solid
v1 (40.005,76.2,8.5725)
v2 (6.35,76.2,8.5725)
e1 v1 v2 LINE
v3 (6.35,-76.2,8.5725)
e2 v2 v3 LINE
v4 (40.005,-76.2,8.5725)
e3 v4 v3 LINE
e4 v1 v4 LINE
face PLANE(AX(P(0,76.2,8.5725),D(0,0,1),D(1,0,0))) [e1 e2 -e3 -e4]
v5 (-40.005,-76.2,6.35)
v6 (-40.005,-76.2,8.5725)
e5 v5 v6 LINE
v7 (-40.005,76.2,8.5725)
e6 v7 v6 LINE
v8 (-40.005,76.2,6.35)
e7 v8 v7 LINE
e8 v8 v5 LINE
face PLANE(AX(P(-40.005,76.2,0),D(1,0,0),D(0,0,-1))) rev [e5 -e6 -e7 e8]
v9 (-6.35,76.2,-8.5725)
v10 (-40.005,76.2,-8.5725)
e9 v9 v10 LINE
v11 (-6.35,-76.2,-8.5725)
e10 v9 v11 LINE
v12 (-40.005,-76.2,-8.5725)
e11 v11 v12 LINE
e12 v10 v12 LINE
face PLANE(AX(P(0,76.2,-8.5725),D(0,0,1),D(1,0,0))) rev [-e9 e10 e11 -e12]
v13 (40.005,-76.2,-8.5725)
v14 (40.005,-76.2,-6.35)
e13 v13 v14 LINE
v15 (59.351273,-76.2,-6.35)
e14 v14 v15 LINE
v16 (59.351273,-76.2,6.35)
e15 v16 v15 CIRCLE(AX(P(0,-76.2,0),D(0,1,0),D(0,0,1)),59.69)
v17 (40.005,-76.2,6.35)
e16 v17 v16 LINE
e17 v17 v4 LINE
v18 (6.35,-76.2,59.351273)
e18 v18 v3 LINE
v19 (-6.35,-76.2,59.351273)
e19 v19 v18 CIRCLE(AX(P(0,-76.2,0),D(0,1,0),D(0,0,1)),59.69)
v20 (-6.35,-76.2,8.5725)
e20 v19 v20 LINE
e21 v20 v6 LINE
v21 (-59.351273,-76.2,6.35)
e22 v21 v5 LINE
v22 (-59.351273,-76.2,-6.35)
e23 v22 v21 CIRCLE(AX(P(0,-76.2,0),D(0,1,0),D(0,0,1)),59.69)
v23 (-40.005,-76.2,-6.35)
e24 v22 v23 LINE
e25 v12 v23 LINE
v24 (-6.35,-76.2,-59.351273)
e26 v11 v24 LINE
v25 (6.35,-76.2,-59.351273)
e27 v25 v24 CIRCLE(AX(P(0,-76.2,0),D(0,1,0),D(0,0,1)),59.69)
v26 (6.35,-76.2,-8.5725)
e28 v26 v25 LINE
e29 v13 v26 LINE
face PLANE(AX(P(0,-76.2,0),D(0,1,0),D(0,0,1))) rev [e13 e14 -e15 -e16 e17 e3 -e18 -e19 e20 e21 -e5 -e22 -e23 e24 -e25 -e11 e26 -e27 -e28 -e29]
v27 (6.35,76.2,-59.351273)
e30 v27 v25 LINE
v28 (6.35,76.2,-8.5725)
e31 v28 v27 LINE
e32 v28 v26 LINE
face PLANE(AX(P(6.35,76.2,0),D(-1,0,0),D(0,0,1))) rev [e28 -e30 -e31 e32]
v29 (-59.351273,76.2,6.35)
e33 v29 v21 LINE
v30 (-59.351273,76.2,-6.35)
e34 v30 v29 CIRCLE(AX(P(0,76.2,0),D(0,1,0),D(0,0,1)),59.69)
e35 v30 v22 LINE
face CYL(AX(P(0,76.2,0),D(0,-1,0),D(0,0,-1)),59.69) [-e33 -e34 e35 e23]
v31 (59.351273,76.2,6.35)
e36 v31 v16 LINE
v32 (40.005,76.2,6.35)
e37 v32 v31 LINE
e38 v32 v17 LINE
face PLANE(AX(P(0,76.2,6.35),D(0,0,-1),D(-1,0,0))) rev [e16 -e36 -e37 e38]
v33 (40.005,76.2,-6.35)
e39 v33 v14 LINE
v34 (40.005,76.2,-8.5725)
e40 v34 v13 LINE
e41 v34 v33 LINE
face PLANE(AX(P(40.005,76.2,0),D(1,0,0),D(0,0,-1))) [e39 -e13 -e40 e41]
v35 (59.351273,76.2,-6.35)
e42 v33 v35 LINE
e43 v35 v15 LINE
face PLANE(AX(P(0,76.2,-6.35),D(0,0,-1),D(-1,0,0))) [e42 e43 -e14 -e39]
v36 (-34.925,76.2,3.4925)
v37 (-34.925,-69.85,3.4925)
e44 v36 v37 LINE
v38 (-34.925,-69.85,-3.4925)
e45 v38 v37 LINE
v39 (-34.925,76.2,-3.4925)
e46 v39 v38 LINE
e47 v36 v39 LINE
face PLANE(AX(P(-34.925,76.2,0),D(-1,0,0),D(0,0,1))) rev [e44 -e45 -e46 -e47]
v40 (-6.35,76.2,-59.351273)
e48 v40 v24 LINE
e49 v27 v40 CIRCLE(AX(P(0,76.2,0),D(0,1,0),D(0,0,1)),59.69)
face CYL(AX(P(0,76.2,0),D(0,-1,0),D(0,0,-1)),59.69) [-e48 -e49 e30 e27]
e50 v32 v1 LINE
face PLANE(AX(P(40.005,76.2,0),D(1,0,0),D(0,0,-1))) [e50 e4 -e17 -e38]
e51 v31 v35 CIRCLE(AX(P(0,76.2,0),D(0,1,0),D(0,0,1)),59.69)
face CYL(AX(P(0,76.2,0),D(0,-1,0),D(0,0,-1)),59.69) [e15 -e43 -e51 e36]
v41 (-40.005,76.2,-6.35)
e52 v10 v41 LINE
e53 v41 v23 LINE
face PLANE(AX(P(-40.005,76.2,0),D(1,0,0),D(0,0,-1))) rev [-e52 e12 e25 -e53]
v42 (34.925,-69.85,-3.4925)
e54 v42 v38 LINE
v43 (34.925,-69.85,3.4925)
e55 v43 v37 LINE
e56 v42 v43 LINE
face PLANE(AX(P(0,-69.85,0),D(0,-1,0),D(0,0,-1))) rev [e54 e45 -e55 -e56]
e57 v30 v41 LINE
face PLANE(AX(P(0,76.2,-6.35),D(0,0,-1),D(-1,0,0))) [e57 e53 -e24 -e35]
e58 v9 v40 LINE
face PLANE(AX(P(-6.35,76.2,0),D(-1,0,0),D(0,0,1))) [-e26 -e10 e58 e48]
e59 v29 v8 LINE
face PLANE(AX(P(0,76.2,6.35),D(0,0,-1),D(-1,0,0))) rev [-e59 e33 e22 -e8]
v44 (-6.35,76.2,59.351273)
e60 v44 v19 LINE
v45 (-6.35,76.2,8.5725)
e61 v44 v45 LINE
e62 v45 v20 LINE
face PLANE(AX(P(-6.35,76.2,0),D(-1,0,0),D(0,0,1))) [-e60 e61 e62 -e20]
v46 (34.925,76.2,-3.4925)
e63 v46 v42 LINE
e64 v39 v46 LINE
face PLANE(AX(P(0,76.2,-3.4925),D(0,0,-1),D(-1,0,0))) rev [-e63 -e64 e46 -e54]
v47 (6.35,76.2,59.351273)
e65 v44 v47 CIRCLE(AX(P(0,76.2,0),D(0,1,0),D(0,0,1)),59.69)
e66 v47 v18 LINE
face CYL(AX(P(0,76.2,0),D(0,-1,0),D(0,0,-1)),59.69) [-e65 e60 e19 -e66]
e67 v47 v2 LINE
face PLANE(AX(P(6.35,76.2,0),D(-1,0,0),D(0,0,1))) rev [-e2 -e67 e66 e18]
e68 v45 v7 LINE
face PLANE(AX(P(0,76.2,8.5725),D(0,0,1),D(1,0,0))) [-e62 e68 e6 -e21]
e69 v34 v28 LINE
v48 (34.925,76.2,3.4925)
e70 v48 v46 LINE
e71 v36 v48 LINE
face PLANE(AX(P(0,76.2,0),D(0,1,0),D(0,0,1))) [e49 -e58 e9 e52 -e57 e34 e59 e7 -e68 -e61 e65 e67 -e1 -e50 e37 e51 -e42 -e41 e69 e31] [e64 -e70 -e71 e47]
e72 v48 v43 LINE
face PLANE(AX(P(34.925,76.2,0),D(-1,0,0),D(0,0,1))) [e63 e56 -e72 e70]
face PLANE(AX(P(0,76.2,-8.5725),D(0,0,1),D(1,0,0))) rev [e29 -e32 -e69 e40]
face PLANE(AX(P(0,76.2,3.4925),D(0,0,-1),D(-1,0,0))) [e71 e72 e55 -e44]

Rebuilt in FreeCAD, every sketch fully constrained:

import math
import FreeCAD as App
import Part
import Sketcher
from FreeCAD import Vector
Q = App.Units.Quantity


def add_polygon(sketch, points):
    """Adds a closed chain of lines whose ends are joined by coincident constraints."""
    first, n = sketch.GeometryCount, len(points)
    for a, b in zip(points, points[1:] + points[:1]):
        sketch.addGeometry(Part.LineSegment(App.Vector(*a, 0), App.Vector(*b, 0)), False)
    for i in range(n):
        sketch.addConstraint(Sketcher.Constraint("Coincident", first + i, 2, first + (i + 1) % n, 1))

doc = App.newDocument("Part")
body = doc.addObject("PartDesign::Body", "Body")

sketch1 = body.newObject("Sketcher::SketchObject", "Sketch")
sketch1.AttachmentSupport = (doc.getObject("XZ_Plane"), [""])
sketch1.MapMode = "FlatFace"
sketch1.addGeometry(Part.LineSegment(Vector(-59.4, 6.3, 0), Vector(-40, 6.3, 0)), False)
sketch1.addGeometry(Part.LineSegment(Vector(-40, 6.3, 0), Vector(-40, 8.6, 0)), False)
sketch1.addGeometry(Part.LineSegment(Vector(-40, 8.6, 0), Vector(-6.3, 8.6, 0)), False)
sketch1.addGeometry(Part.LineSegment(Vector(-6.3, 8.6, 0), Vector(-6.3, 59.4, 0)), False)
sketch1.addGeometry(Part.ArcOfCircle(Part.Circle(Vector(0, 0, 0), Vector(0, 0, 1), 59.7), math.radians(83.89), math.radians(96.11)), False)
sketch1.addGeometry(Part.LineSegment(Vector(6.3, 59.4, 0), Vector(6.3, 8.6, 0)), False)
sketch1.addGeometry(Part.LineSegment(Vector(6.3, 8.6, 0), Vector(40, 8.6, 0)), False)
sketch1.addGeometry(Part.LineSegment(Vector(40, 8.6, 0), Vector(40, 6.3, 0)), False)
sketch1.addGeometry(Part.LineSegment(Vector(40, 6.3, 0), Vector(59.4, 6.3, 0)), False)
sketch1.addGeometry(Part.ArcOfCircle(Part.Circle(Vector(0, 0, 0), Vector(0, 0, 1), 59.7), math.radians(0), math.radians(6.11)), False)
sketch1.addGeometry(Part.ArcOfCircle(Part.Circle(Vector(0, 0, 0), Vector(0, 0, 1), 59.7), math.radians(-6.11), math.radians(0)), False)
sketch1.addGeometry(Part.LineSegment(Vector(59.4, -6.3, 0), Vector(40, -6.3, 0)), False)
sketch1.addGeometry(Part.LineSegment(Vector(40, -6.3, 0), Vector(40, -8.6, 0)), False)
sketch1.addGeometry(Part.LineSegment(Vector(40, -8.6, 0), Vector(6.3, -8.6, 0)), False)
sketch1.addGeometry(Part.LineSegment(Vector(6.3, -8.6, 0), Vector(6.3, -59.4, 0)), False)
sketch1.addGeometry(Part.ArcOfCircle(Part.Circle(Vector(0, 0, 0), Vector(0, 0, 1), 59.7), math.radians(-96.11), math.radians(-83.89)), False)
sketch1.addGeometry(Part.LineSegment(Vector(-6.3, -59.4, 0), Vector(-6.3, -8.6, 0)), False)
sketch1.addGeometry(Part.LineSegment(Vector(-6.3, -8.6, 0), Vector(-40, -8.6, 0)), False)
sketch1.addGeometry(Part.LineSegment(Vector(-40, -8.6, 0), Vector(-40, -6.3, 0)), False)
sketch1.addGeometry(Part.LineSegment(Vector(-40, -6.3, 0), Vector(-59.4, -6.3, 0)), False)
sketch1.addGeometry(Part.ArcOfCircle(Part.Circle(Vector(0, 0, 0), Vector(0, 0, 1), 59.7), math.radians(173.89), math.radians(186.11)), False)
add_polygon(sketch1, [(-34.9, 3.5), (-34.9, -3.5), (34.9, -3.5), (34.9, 3.5)])
sketch1.addConstraint(Sketcher.Constraint("Coincident", 0, 2, 1, 1))
sketch1.addConstraint(Sketcher.Constraint("Coincident", 1, 2, 2, 1))
sketch1.addConstraint(Sketcher.Constraint("Coincident", 2, 2, 3, 1))
sketch1.addConstraint(Sketcher.Constraint("Coincident", 3, 2, 4, 2))
sketch1.addConstraint(Sketcher.Constraint("Coincident", 4, 1, 5, 1))
sketch1.addConstraint(Sketcher.Constraint("Coincident", 5, 2, 6, 1))
sketch1.addConstraint(Sketcher.Constraint("Coincident", 6, 2, 7, 1))
sketch1.addConstraint(Sketcher.Constraint("Coincident", 7, 2, 8, 1))
sketch1.addConstraint(Sketcher.Constraint("Coincident", 8, 2, 9, 2))
sketch1.addConstraint(Sketcher.Constraint("Tangent", 9, 1, 10, 2))
sketch1.addConstraint(Sketcher.Constraint("Coincident", 10, 1, 11, 1))
sketch1.addConstraint(Sketcher.Constraint("Coincident", 11, 2, 12, 1))
sketch1.addConstraint(Sketcher.Constraint("Coincident", 12, 2, 13, 1))
sketch1.addConstraint(Sketcher.Constraint("Coincident", 13, 2, 14, 1))
sketch1.addConstraint(Sketcher.Constraint("Coincident", 14, 2, 15, 2))
sketch1.addConstraint(Sketcher.Constraint("Coincident", 15, 1, 16, 1))
sketch1.addConstraint(Sketcher.Constraint("Coincident", 16, 2, 17, 1))
sketch1.addConstraint(Sketcher.Constraint("Coincident", 17, 2, 18, 1))
sketch1.addConstraint(Sketcher.Constraint("Coincident", 18, 2, 19, 1))
sketch1.addConstraint(Sketcher.Constraint("Coincident", 19, 2, 20, 2))
sketch1.addConstraint(Sketcher.Constraint("Coincident", 20, 1, 0, 1))
sketch1.addConstraint(Sketcher.Constraint("Horizontal", 0))
sketch1.addConstraint(Sketcher.Constraint("Vertical", 1))
sketch1.addConstraint(Sketcher.Constraint("Horizontal", 2))
sketch1.addConstraint(Sketcher.Constraint("Vertical", 3))
sketch1.addConstraint(Sketcher.Constraint("Vertical", 5))
sketch1.addConstraint(Sketcher.Constraint("Horizontal", 6))
sketch1.addConstraint(Sketcher.Constraint("Vertical", 7))
sketch1.addConstraint(Sketcher.Constraint("Horizontal", 8))
sketch1.addConstraint(Sketcher.Constraint("Horizontal", 11))
sketch1.addConstraint(Sketcher.Constraint("Vertical", 12))
sketch1.addConstraint(Sketcher.Constraint("Horizontal", 13))
sketch1.addConstraint(Sketcher.Constraint("Vertical", 14))
sketch1.addConstraint(Sketcher.Constraint("Vertical", 16))
sketch1.addConstraint(Sketcher.Constraint("Horizontal", 17))
sketch1.addConstraint(Sketcher.Constraint("Vertical", 18))
sketch1.addConstraint(Sketcher.Constraint("Horizontal", 19))
sketch1.addConstraint(Sketcher.Constraint("Vertical", 21))
sketch1.addConstraint(Sketcher.Constraint("Horizontal", 22))
sketch1.addConstraint(Sketcher.Constraint("Vertical", 23))
sketch1.addConstraint(Sketcher.Constraint("Horizontal", 24))
sketch1.addConstraint(Sketcher.Constraint("Coincident", 4, 3, -1, 1))
sketch1.addConstraint(Sketcher.Constraint("Coincident", 9, 3, -1, 1))
sketch1.addConstraint(Sketcher.Constraint("Coincident", 15, 3, -1, 1))
sketch1.addConstraint(Sketcher.Constraint("Coincident", 20, 3, -1, 1))
sketch1.addConstraint(Sketcher.Constraint("Equal", 4, 9))
sketch1.addConstraint(Sketcher.Constraint("Equal", 9, 10))
sketch1.addConstraint(Sketcher.Constraint("Equal", 10, 15))
sketch1.addConstraint(Sketcher.Constraint("Equal", 15, 20))
sketch1.addConstraint(Sketcher.Constraint("Symmetric", 0, 2, 11, 2, -1, 1))
sketch1.addConstraint(Sketcher.Constraint("Symmetric", 2, 2, 13, 2, -1, 1))
sketch1.addConstraint(Sketcher.Constraint("Symmetric", 5, 2, 16, 2, -1, 1))
sketch1.addConstraint(Sketcher.Constraint("Symmetric", 7, 2, 18, 2, -1, 1))
sketch1.addConstraint(Sketcher.Constraint("Symmetric", 21, 2, 23, 2, -1, 1))
sketch1.addConstraint(Sketcher.Constraint("Symmetric", 2, 2, 5, 2, -2))
sketch1.addConstraint(Sketcher.Constraint("Symmetric", 0, 2, 7, 2, -2))
sketch1.addConstraint(Sketcher.Constraint("PointOnObject", 9, 1, -1))
sketch1.addConstraint(Sketcher.Constraint("Radius", 4, Q("2.35 in")))
sketch1.addConstraint(Sketcher.Constraint("DistanceX", 22, 1, 22, 2, Q("2.75 in")))
sketch1.addConstraint(Sketcher.Constraint("DistanceX", 3, 2, 4, 1, Q("0.5 in")))
sketch1.addConstraint(Sketcher.Constraint("DistanceY", 10, 1, 8, 2, Q("0.5 in")))
sketch1.addConstraint(Sketcher.Constraint("DistanceX", 18, 2, 21, 2, Q("0.2 in")))
sketch1.addConstraint(Sketcher.Constraint("DistanceY", 17, 2, 21, 2, Q("0.2 in")))
sketch1.addConstraint(Sketcher.Constraint("DistanceY", 21, 2, 21, 1, Q("0.275 in")))
pad1 = body.newObject("PartDesign::Pad", "Pad")
pad1.Profile = sketch1
pad1.Length = Q("6 in")
pad1.Midplane = True

sketch2 = body.newObject("Sketcher::SketchObject", "Sketch001")
sketch2.AttachmentSupport = (doc.getObject("XZ_Plane"), [""])
sketch2.MapMode = "FlatFace"
sketch2.AttachmentOffset = App.Placement(Vector(0, 0, 3 * 25.4), App.Rotation())
add_polygon(sketch2, [(-40, 9), (-40, -9), (40, -9), (40, 9)])
sketch2.addConstraint(Sketcher.Constraint("Vertical", 0))
sketch2.addConstraint(Sketcher.Constraint("Horizontal", 1))
sketch2.addConstraint(Sketcher.Constraint("Vertical", 2))
sketch2.addConstraint(Sketcher.Constraint("Horizontal", 3))
sketch2.addConstraint(Sketcher.Constraint("Symmetric", 0, 2, 2, 2, -1, 1))
sketch2.addConstraint(Sketcher.Constraint("DistanceX", 1, 1, 1, 2, Q("3.15 in")))
sketch2.addConstraint(Sketcher.Constraint("DistanceY", 0, 2, 0, 1, Q("0.675 in")))
pad2 = body.newObject("PartDesign::Pad", "Pad001")
pad2.Profile = sketch2
pad2.Length = Q("0.25 in")
pad2.Reversed = True

doc.recompute()
